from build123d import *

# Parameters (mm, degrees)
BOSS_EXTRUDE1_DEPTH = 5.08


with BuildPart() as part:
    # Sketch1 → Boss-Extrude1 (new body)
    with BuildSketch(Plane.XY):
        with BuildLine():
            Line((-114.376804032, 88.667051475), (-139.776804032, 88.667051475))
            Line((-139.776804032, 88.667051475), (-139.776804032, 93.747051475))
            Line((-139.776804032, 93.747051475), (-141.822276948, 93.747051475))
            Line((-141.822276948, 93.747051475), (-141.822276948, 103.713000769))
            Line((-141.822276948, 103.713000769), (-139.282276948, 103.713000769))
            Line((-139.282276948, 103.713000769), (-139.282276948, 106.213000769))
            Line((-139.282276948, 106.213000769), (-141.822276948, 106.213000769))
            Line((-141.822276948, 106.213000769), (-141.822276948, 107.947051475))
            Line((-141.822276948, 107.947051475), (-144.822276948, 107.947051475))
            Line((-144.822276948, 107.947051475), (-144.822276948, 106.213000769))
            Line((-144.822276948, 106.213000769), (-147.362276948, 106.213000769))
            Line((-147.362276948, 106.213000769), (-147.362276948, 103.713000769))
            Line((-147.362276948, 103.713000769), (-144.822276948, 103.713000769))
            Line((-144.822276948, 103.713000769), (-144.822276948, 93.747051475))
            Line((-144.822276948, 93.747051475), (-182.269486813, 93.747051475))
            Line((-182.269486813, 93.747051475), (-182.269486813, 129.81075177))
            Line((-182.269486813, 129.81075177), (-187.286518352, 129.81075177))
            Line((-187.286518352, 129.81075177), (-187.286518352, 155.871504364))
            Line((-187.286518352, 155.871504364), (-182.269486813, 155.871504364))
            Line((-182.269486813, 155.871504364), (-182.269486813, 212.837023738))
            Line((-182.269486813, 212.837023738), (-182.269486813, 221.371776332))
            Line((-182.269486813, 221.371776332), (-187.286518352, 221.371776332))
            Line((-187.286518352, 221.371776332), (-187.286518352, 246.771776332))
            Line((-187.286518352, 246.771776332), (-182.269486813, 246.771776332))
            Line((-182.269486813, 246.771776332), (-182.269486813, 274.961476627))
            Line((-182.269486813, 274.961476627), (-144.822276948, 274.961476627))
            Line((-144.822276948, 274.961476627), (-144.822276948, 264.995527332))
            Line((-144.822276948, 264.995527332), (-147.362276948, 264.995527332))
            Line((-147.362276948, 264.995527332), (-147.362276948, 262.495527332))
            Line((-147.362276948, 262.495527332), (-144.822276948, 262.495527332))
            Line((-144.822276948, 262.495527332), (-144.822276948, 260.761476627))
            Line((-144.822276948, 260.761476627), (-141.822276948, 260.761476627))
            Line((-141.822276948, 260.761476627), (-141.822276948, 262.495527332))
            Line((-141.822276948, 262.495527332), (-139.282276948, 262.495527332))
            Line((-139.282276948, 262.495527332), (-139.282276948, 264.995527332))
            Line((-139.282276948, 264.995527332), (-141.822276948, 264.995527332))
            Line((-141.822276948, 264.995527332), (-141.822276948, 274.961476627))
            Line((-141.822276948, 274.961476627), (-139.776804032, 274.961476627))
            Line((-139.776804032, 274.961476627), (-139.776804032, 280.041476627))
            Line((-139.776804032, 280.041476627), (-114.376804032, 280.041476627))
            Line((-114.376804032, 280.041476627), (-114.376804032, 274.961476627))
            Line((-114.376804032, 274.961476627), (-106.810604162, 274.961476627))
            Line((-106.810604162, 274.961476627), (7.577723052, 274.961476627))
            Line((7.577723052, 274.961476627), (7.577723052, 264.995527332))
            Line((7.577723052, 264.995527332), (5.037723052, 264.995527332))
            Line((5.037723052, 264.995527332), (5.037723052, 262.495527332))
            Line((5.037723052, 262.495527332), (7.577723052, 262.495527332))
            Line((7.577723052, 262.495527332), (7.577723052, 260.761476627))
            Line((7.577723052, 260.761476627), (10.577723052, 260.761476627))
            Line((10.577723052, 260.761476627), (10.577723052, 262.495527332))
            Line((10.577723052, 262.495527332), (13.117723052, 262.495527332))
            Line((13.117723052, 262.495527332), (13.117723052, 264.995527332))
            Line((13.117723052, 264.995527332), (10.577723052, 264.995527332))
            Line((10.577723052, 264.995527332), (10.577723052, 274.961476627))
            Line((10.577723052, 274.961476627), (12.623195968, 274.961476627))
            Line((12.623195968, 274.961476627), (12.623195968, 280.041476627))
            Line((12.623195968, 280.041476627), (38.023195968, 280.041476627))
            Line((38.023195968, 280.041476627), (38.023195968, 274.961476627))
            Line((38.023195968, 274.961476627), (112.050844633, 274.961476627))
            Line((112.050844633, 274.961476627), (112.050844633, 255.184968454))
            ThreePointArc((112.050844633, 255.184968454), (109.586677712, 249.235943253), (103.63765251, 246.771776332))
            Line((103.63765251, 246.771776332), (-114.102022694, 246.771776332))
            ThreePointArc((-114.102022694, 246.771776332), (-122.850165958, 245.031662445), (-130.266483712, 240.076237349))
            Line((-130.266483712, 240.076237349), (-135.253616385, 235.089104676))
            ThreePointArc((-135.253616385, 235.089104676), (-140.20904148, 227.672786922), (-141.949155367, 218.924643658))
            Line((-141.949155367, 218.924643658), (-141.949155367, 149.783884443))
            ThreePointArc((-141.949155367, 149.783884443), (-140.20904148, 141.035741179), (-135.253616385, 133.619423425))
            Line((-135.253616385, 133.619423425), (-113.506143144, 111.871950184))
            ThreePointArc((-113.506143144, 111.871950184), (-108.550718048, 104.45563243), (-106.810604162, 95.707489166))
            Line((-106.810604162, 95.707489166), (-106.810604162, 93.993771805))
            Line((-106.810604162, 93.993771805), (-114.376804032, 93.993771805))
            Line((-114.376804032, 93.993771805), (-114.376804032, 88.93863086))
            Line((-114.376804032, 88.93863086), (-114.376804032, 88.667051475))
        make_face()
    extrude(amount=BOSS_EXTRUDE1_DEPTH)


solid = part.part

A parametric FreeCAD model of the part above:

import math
import FreeCAD as App
import Part
import Sketcher
Q = App.Units.Quantity

doc = App.newDocument("Part")
body = doc.addObject("PartDesign::Body", "Body")

# Sketch on XY plane
sketch1 = body.newObject("Sketcher::SketchObject", "Sketch")
sketch1.AttachmentSupport = (doc.getObject("XY_Plane"), [""])
sketch1.MapMode = "FlatFace"
sketch1.addGeometry([
    Part.LineSegment(App.Vector(-139.776804, 88.667051, 0), App.Vector(-114.376804, 88.667051, 0)),  # 0
    Part.LineSegment(App.Vector(-114.376804, 88.667051, 0), App.Vector(-114.376804, 93.993772, 0)),  # 1
    Part.LineSegment(App.Vector(-114.376804, 93.993772, 0), App.Vector(-106.810604, 93.993772, 0)),  # 2
    Part.LineSegment(App.Vector(-106.810604, 93.993772, 0), App.Vector(-106.810604, 95.707489, 0)),  # 3
    Part.ArcOfCircle(Part.Circle(App.Vector(-129.670604, 95.707489, 0), App.Vector(0, 0, 1), 22.86), math.radians(0), math.radians(45)),  # 4
    Part.LineSegment(App.Vector(-113.506143, 111.87195, 0), App.Vector(-135.253616, 133.619423, 0)),  # 5
    Part.ArcOfCircle(Part.Circle(App.Vector(-119.089155, 149.783884, 0), App.Vector(0, 0, 1), 22.86), math.radians(-180), math.radians(-135)),  # 6
    Part.LineSegment(App.Vector(-141.949155, 149.783884, 0), App.Vector(-141.949155, 218.924644, 0)),  # 7
    Part.ArcOfCircle(Part.Circle(App.Vector(-119.089155, 218.924644, 0), App.Vector(0, 0, 1), 22.86), math.radians(135), math.radians(180)),  # 8
    Part.LineSegment(App.Vector(-135.253616, 235.089105, 0), App.Vector(-130.266484, 240.076237, 0)),  # 9
    Part.ArcOfCircle(Part.Circle(App.Vector(-114.102023, 223.911776, 0), App.Vector(0, 0, 1), 22.86), math.radians(90), math.radians(135)),  # 10
    Part.LineSegment(App.Vector(-114.102023, 246.771776, 0), App.Vector(103.637653, 246.771776, 0)),  # 11
    Part.ArcOfCircle(Part.Circle(App.Vector(103.637653, 255.184968, 0), App.Vector(0, 0, 1), 8.413192), math.radians(-90), math.radians(0)),  # 12
    Part.LineSegment(App.Vector(112.050845, 255.184968, 0), App.Vector(112.050845, 274.961477, 0)),  # 13
    Part.LineSegment(App.Vector(112.050845, 274.961477, 0), App.Vector(38.023196, 274.961477, 0)),  # 14
    Part.LineSegment(App.Vector(38.023196, 274.961477, 0), App.Vector(38.023196, 280.041477, 0)),  # 15
    Part.LineSegment(App.Vector(38.023196, 280.041477, 0), App.Vector(12.623196, 280.041477, 0)),  # 16
    Part.LineSegment(App.Vector(12.623196, 280.041477, 0), App.Vector(12.623196, 274.961477, 0)),  # 17
    Part.LineSegment(App.Vector(12.623196, 274.961477, 0), App.Vector(10.577723, 274.961477, 0)),  # 18
    Part.LineSegment(App.Vector(10.577723, 274.961477, 0), App.Vector(10.577723, 264.995527, 0)),  # 19
    Part.LineSegment(App.Vector(10.577723, 264.995527, 0), App.Vector(13.117723, 264.995527, 0)),  # 20
    Part.LineSegment(App.Vector(13.117723, 264.995527, 0), App.Vector(13.117723, 262.495527, 0)),  # 21
    Part.LineSegment(App.Vector(13.117723, 262.495527, 0), App.Vector(10.577723, 262.495527, 0)),  # 22
    Part.LineSegment(App.Vector(10.577723, 262.495527, 0), App.Vector(10.577723, 260.761477, 0)),  # 23
    Part.LineSegment(App.Vector(10.577723, 260.761477, 0), App.Vector(7.577723, 260.761477, 0)),  # 24
    Part.LineSegment(App.Vector(7.577723, 260.761477, 0), App.Vector(7.577723, 262.495527, 0)),  # 25
    Part.LineSegment(App.Vector(7.577723, 262.495527, 0), App.Vector(5.037723, 262.495527, 0)),  # 26
    Part.LineSegment(App.Vector(5.037723, 262.495527, 0), App.Vector(5.037723, 264.995527, 0)),  # 27
    Part.LineSegment(App.Vector(5.037723, 264.995527, 0), App.Vector(7.577723, 264.995527, 0)),  # 28
    Part.LineSegment(App.Vector(7.577723, 264.995527, 0), App.Vector(7.577723, 274.961477, 0)),  # 29
    Part.LineSegment(App.Vector(7.577723, 274.961477, 0), App.Vector(-114.376804, 274.961477, 0)),  # 30
    Part.LineSegment(App.Vector(-114.376804, 274.961477, 0), App.Vector(-114.376804, 280.041477, 0)),  # 31
    Part.LineSegment(App.Vector(-114.376804, 280.041477, 0), App.Vector(-139.776804, 280.041477, 0)),  # 32
    Part.LineSegment(App.Vector(-139.776804, 280.041477, 0), App.Vector(-139.776804, 274.961477, 0)),  # 33
    Part.LineSegment(App.Vector(-139.776804, 274.961477, 0), App.Vector(-141.822277, 274.961477, 0)),  # 34
    Part.LineSegment(App.Vector(-141.822277, 274.961477, 0), App.Vector(-141.822277, 264.995527, 0)),  # 35
    Part.LineSegment(App.Vector(-141.822277, 264.995527, 0), App.Vector(-139.282277, 264.995527, 0)),  # 36
    Part.LineSegment(App.Vector(-139.282277, 264.995527, 0), App.Vector(-139.282277, 262.495527, 0)),  # 37
    Part.LineSegment(App.Vector(-139.282277, 262.495527, 0), App.Vector(-141.822277, 262.495527, 0)),  # 38
    Part.LineSegment(App.Vector(-141.822277, 262.495527, 0), App.Vector(-141.822277, 260.761477, 0)),  # 39
    Part.LineSegment(App.Vector(-141.822277, 260.761477, 0), App.Vector(-144.822277, 260.761477, 0)),  # 40
    Part.LineSegment(App.Vector(-144.822277, 260.761477, 0), App.Vector(-144.822277, 262.495527, 0)),  # 41
    Part.LineSegment(App.Vector(-144.822277, 262.495527, 0), App.Vector(-147.362277, 262.495527, 0)),  # 42
    Part.LineSegment(App.Vector(-147.362277, 262.495527, 0), App.Vector(-147.362277, 264.995527, 0)),  # 43
    Part.LineSegment(App.Vector(-147.362277, 264.995527, 0), App.Vector(-144.822277, 264.995527, 0)),  # 44
    Part.LineSegment(App.Vector(-144.822277, 264.995527, 0), App.Vector(-144.822277, 274.961477, 0)),  # 45
    Part.LineSegment(App.Vector(-144.822277, 274.961477, 0), App.Vector(-182.269487, 274.961477, 0)),  # 46
    Part.LineSegment(App.Vector(-182.269487, 274.961477, 0), App.Vector(-182.269487, 246.771776, 0)),  # 47
    Part.LineSegment(App.Vector(-182.269487, 246.771776, 0), App.Vector(-187.286518, 246.771776, 0)),  # 48
    Part.LineSegment(App.Vector(-187.286518, 246.771776, 0), App.Vector(-187.286518, 221.371776, 0)),  # 49
    Part.LineSegment(App.Vector(-187.286518, 221.371776, 0), App.Vector(-182.269487, 221.371776, 0)),  # 50
    Part.LineSegment(App.Vector(-182.269487, 221.371776, 0), App.Vector(-182.269487, 155.871504, 0)),  # 51
    Part.LineSegment(App.Vector(-182.269487, 155.871504, 0), App.Vector(-187.286518, 155.871504, 0)),  # 52
    Part.LineSegment(App.Vector(-187.286518, 155.871504, 0), App.Vector(-187.286518, 129.810752, 0)),  # 53
    Part.LineSegment(App.Vector(-187.286518, 129.810752, 0), App.Vector(-182.269487, 129.810752, 0)),  # 54
    Part.LineSegment(App.Vector(-182.269487, 129.810752, 0), App.Vector(-182.269487, 93.747051, 0)),  # 55
    Part.LineSegment(App.Vector(-182.269487, 93.747051, 0), App.Vector(-144.822277, 93.747051, 0)),  # 56
    Part.LineSegment(App.Vector(-144.822277, 93.747051, 0), App.Vector(-144.822277, 103.713001, 0)),  # 57
    Part.LineSegment(App.Vector(-144.822277, 103.713001, 0), App.Vector(-147.362277, 103.713001, 0)),  # 58
    Part.LineSegment(App.Vector(-147.362277, 103.713001, 0), App.Vector(-147.362277, 106.213001, 0)),  # 59
    Part.LineSegment(App.Vector(-147.362277, 106.213001, 0), App.Vector(-144.822277, 106.213001, 0)),  # 60
    Part.LineSegment(App.Vector(-144.822277, 106.213001, 0), App.Vector(-144.822277, 107.947051, 0)),  # 61
    Part.LineSegment(App.Vector(-144.822277, 107.947051, 0), App.Vector(-141.822277, 107.947051, 0)),  # 62
    Part.LineSegment(App.Vector(-141.822277, 107.947051, 0), App.Vector(-141.822277, 106.213001, 0)),  # 63
    Part.LineSegment(App.Vector(-141.822277, 106.213001, 0), App.Vector(-139.282277, 106.213001, 0)),  # 64
    Part.LineSegment(App.Vector(-139.282277, 106.213001, 0), App.Vector(-139.282277, 103.713001, 0)),  # 65
    Part.LineSegment(App.Vector(-139.282277, 103.713001, 0), App.Vector(-141.822277, 103.713001, 0)),  # 66
    Part.LineSegment(App.Vector(-141.822277, 103.713001, 0), App.Vector(-141.822277, 93.747051, 0)),  # 67
    Part.LineSegment(App.Vector(-141.822277, 93.747051, 0), App.Vector(-139.776804, 93.747051, 0)),  # 68
    Part.LineSegment(App.Vector(-139.776804, 93.747051, 0), App.Vector(-139.776804, 88.667051, 0)),  # 69
], False)
sketch1.addConstraint([
    Sketcher.Constraint("Coincident", 0, 2, 1, 1),
    Sketcher.Constraint("Coincident", 1, 2, 2, 1),
    Sketcher.Constraint("Coincident", 2, 2, 3, 1),
    Sketcher.Constraint("Tangent", 3, 2, 4, 1),
    Sketcher.Constraint("Tangent", 4, 2, 5, 1),
    Sketcher.Constraint("Tangent", 5, 2, 6, 2),
    Sketcher.Constraint("Tangent", 6, 1, 7, 1),
    Sketcher.Constraint("Tangent", 7, 2, 8, 2),
    Sketcher.Constraint("Tangent", 8, 1, 9, 1),
    Sketcher.Constraint("Tangent", 9, 2, 10, 2),
    Sketcher.Constraint("Tangent", 10, 1, 11, 1),
    Sketcher.Constraint("Tangent", 11, 2, 12, 1),
    Sketcher.Constraint("Tangent", 12, 2, 13, 1),
    Sketcher.Constraint("Coincident", 13, 2, 14, 1),
    Sketcher.Constraint("Coincident", 14, 2, 15, 1),
    Sketcher.Constraint("Coincident", 15, 2, 16, 1),
    Sketcher.Constraint("Coincident", 16, 2, 17, 1),
    Sketcher.Constraint("Coincident", 17, 2, 18, 1),
    Sketcher.Constraint("Coincident", 18, 2, 19, 1),
    Sketcher.Constraint("Coincident", 19, 2, 20, 1),
    Sketcher.Constraint("Coincident", 20, 2, 21, 1),
    Sketcher.Constraint("Coincident", 21, 2, 22, 1),
    Sketcher.Constraint("Coincident", 22, 2, 23, 1),
    Sketcher.Constraint("Coincident", 23, 2, 24, 1),
    Sketcher.Constraint("Coincident", 24, 2, 25, 1),
    Sketcher.Constraint("Coincident", 25, 2, 26, 1),
    Sketcher.Constraint("Coincident", 26, 2, 27, 1),
    Sketcher.Constraint("Coincident", 27, 2, 28, 1),
    Sketcher.Constraint("Coincident", 28, 2, 29, 1),
    Sketcher.Constraint("Coincident", 29, 2, 30, 1),
    Sketcher.Constraint("Coincident", 30, 2, 31, 1),
    Sketcher.Constraint("Coincident", 31, 2, 32, 1),
    Sketcher.Constraint("Coincident", 32, 2, 33, 1),
    Sketcher.Constraint("Coincident", 33, 2, 34, 1),
    Sketcher.Constraint("Coincident", 34, 2, 35, 1),
    Sketcher.Constraint("Coincident", 35, 2, 36, 1),
    Sketcher.Constraint("Coincident", 36, 2, 37, 1),
    Sketcher.Constraint("Coincident", 37, 2, 38, 1),
    Sketcher.Constraint("Coincident", 38, 2, 39, 1),
    Sketcher.Constraint("Coincident", 39, 2, 40, 1),
    Sketcher.Constraint("Coincident", 40, 2, 41, 1),
    Sketcher.Constraint("Coincident", 41, 2, 42, 1),
    Sketcher.Constraint("Coincident", 42, 2, 43, 1),
    Sketcher.Constraint("Coincident", 43, 2, 44, 1),
    Sketcher.Constraint("Coincident", 44, 2, 45, 1),
    Sketcher.Constraint("Coincident", 45, 2, 46, 1),
    Sketcher.Constraint("Coincident", 46, 2, 47, 1),
    Sketcher.Constraint("Coincident", 47, 2, 48, 1),
    Sketcher.Constraint("Coincident", 48, 2, 49, 1),
    Sketcher.Constraint("Coincident", 49, 2, 50, 1),
    Sketcher.Constraint("Coincident", 50, 2, 51, 1),
    Sketcher.Constraint("Coincident", 51, 2, 52, 1),
    Sketcher.Constraint("Coincident", 52, 2, 53, 1),
    Sketcher.Constraint("Coincident", 53, 2, 54, 1),
    Sketcher.Constraint("Coincident", 54, 2, 55, 1),
    Sketcher.Constraint("Coincident", 55, 2, 56, 1),
    Sketcher.Constraint("Coincident", 56, 2, 57, 1),
    Sketcher.Constraint("Coincident", 57, 2, 58, 1),
    Sketcher.Constraint("Coincident", 58, 2, 59, 1),
    Sketcher.Constraint("Coincident", 59, 2, 60, 1),
    Sketcher.Constraint("Coincident", 60, 2, 61, 1),
    Sketcher.Constraint("Coincident", 61, 2, 62, 1),
    Sketcher.Constraint("Coincident", 62, 2, 63, 1),
    Sketcher.Constraint("Coincident", 63, 2, 64, 1),
    Sketcher.Constraint("Coincident", 64, 2, 65, 1),
    Sketcher.Constraint("Coincident", 65, 2, 66, 1),
    Sketcher.Constraint("Coincident", 66, 2, 67, 1),
    Sketcher.Constraint("Coincident", 67, 2, 68, 1),
    Sketcher.Constraint("Coincident", 68, 2, 69, 1),
    Sketcher.Constraint("Coincident", 69, 2, 0, 1),
    Sketcher.Constraint("Horizontal", 0),
    Sketcher.Constraint("Vertical", 1),
    Sketcher.Constraint("Horizontal", 2),
    Sketcher.Constraint("Vertical", 3),
    Sketcher.Constraint("Vertical", 7),
    Sketcher.Constraint("Horizontal", 11),
    Sketcher.Constraint("Vertical", 13),
    Sketcher.Constraint("Horizontal", 14),
    Sketcher.Constraint("Vertical", 15),
    Sketcher.Constraint("Horizontal", 16),
    Sketcher.Constraint("Vertical", 17),
    Sketcher.Constraint("Horizontal", 18),
    Sketcher.Constraint("Vertical", 19),
    Sketcher.Constraint("Horizontal", 20),
    Sketcher.Constraint("Vertical", 21),
    Sketcher.Constraint("Horizontal", 22),
    Sketcher.Constraint("Vertical", 23),
    Sketcher.Constraint("Horizontal", 24),
    Sketcher.Constraint("Vertical", 25),
    Sketcher.Constraint("Horizontal", 26),
    Sketcher.Constraint("Vertical", 27),
    Sketcher.Constraint("Horizontal", 28),
    Sketcher.Constraint("Vertical", 29),
    Sketcher.Constraint("Horizontal", 30),
    Sketcher.Constraint("Vertical", 31),
    Sketcher.Constraint("Horizontal", 32),
    Sketcher.Constraint("Vertical", 33),
    Sketcher.Constraint("Horizontal", 34),
    Sketcher.Constraint("Vertical", 35),
    Sketcher.Constraint("Horizontal", 36),
    Sketcher.Constraint("Vertical", 37),
    Sketcher.Constraint("Horizontal", 38),
    Sketcher.Constraint("Vertical", 39),
    Sketcher.Constraint("Horizontal", 40),
    Sketcher.Constraint("Vertical", 41),
    Sketcher.Constraint("Horizontal", 42),
    Sketcher.Constraint("Vertical", 43),
    Sketcher.Constraint("Horizontal", 44),
    Sketcher.Constraint("Vertical", 45),
    Sketcher.Constraint("Horizontal", 46),
    Sketcher.Constraint("Vertical", 47),
    Sketcher.Constraint("Horizontal", 48),
    Sketcher.Constraint("Vertical", 49),
    Sketcher.Constraint("Horizontal", 50),
    Sketcher.Constraint("Vertical", 51),
    Sketcher.Constraint("Horizontal", 52),
    Sketcher.Constraint("Vertical", 53),
    Sketcher.Constraint("Horizontal", 54),
    Sketcher.Constraint("Vertical", 55),
    Sketcher.Constraint("Horizontal", 56),
    Sketcher.Constraint("Vertical", 57),
    Sketcher.Constraint("Horizontal", 58),
    Sketcher.Constraint("Vertical", 59),
    Sketcher.Constraint("Horizontal", 60),
    Sketcher.Constraint("Vertical", 61),
    Sketcher.Constraint("Horizontal", 62),
    Sketcher.Constraint("Vertical", 63),
    Sketcher.Constraint("Horizontal", 64),
    Sketcher.Constraint("Vertical", 65),
    Sketcher.Constraint("Horizontal", 66),
    Sketcher.Constraint("Vertical", 67),
    Sketcher.Constraint("Horizontal", 68),
    Sketcher.Constraint("Vertical", 69),
    Sketcher.Constraint("Equal", 4, 6),
    Sketcher.Constraint("Equal", 6, 8),
    Sketcher.Constraint("Equal", 8, 10),
    Sketcher.Constraint("Perpendicular", 5, 9),
    Sketcher.Constraint("Horizontal", 14, 2, 17, 2),
    Sketcher.Constraint("Horizontal", 22, 2, 25, 2),
    Sketcher.Constraint("Horizontal", 20, 2, 27, 2),
    Sketcher.Constraint("Horizontal", 18, 2, 29, 2),
    Sketcher.Constraint("Horizontal", 16, 2, 31, 2),
    Sketcher.Constraint("Horizontal", 30, 2, 33, 2),
    Sketcher.Constraint("Horizontal", 28, 2, 35, 2),
    Sketcher.Constraint("Horizontal", 26, 2, 37, 2),
    Sketcher.Constraint("Horizontal", 24, 2, 39, 2),
    Sketcher.Constraint("Horizontal", 38, 2, 41, 2),
    Sketcher.Constraint("Horizontal", 36, 2, 43, 2),
    Sketcher.Constraint("Horizontal", 34, 2, 45, 2),
    Sketcher.Constraint("Horizontal", 11, 2, 47, 2),
    Sketcher.Constraint("Horizontal", 60, 2, 63, 2),
    Sketcher.Constraint("Horizontal", 58, 2, 65, 2),
    Sketcher.Constraint("Horizontal", 56, 2, 67, 2),
    Sketcher.Constraint("Vertical", 5, 2, 8, 1),
    Sketcher.Constraint("Vertical", 19, 2, 22, 2),
    Sketcher.Constraint("Vertical", 25, 2, 28, 2),
    Sketcher.Constraint("Vertical", 1, 2, 30, 2),
    Sketcher.Constraint("Vertical", 35, 2, 38, 2),
    Sketcher.Constraint("Vertical", 41, 2, 44, 2),
    Sketcher.Constraint("Vertical", 47, 2, 50, 2),
    Sketcher.Constraint("Vertical", 49, 2, 52, 2),
    Sketcher.Constraint("Vertical", 51, 2, 54, 2),
    Sketcher.Constraint("Vertical", 45, 2, 56, 2),
    Sketcher.Constraint("Vertical", 43, 2, 58, 2),
    Sketcher.Constraint("Vertical", 57, 2, 60, 2),
    Sketcher.Constraint("Vertical", 39, 2, 62, 2),
    Sketcher.Constraint("Vertical", 37, 2, 64, 2),
    Sketcher.Constraint("Vertical", 63, 2, 66, 2),
    Sketcher.Constraint("Vertical", 33, 2, 68, 2),
    Sketcher.Constraint("Equal", 0, 16),
    Sketcher.Constraint("Equal", 22, 26),
    Sketcher.Constraint("Equal", 18, 34),
    Sketcher.Constraint("Equal", 28, 36),
    Sketcher.Constraint("Equal", 24, 40),
    Sketcher.Constraint("Equal", 38, 42),
    Sketcher.Constraint("Equal", 32, 49),
    Sketcher.Constraint("Equal", 45, 57),
    Sketcher.Constraint("Equal", 43, 59),
    Sketcher.Constraint("Equal", 41, 61),
    Sketcher.Constraint("Equal", 33, 69),
    Sketcher.Constraint("Radius", 4, Q("0.9 in")),
    Sketcher.Constraint("DistanceX", 0, 1, 0, 2, Q("1 in")),
    Sketcher.Constraint("DistanceX", 20, 1, 20, 2, Q("0.1 in")),
    Sketcher.Constraint("DistanceY", 15, 1, 15, 2, Q("0.2 in")),
    Sketcher.Constraint("DistanceX", 2, 1, 2, 2, 7.5662),
    Sketcher.Constraint("DistanceX", 24, 2, 24, 1, 3.0),
    Sketcher.Constraint("DistanceY", 21, 2, 21, 1, 2.5),
    Sketcher.Constraint("DistanceY", 47, 2, 47, 1, 28.1897),
    Sketcher.Constraint("DistanceY", 55, 2, 55, 1, 36.0637),
    Sketcher.Constraint("DistanceY", -1, 1, 23, 2, Q("10.2661999 in")),
    Sketcher.Constraint("Radius", 12, 8.413192),
    Sketcher.Constraint("DistanceX", 14, 2, 14, 1, 74.027649),
    Sketcher.Constraint("DistanceX", 46, 2, 46, 1, 37.44721),
    Sketcher.Constraint("DistanceX", 48, 2, 48, 1, 5.017032),
    Sketcher.Constraint("DistanceY", 1, 1, 1, 2, 5.32672),
    Sketcher.Constraint("DistanceY", 7, 1, 7, 2, 69.140759),
    Sketcher.Constraint("DistanceY", 19, 2, 19, 1, 9.965949),
    Sketcher.Constraint("DistanceY", 23, 2, 23, 1, 1.734051),
    Sketcher.Constraint("DistanceY", 51, 2, 51, 1, 65.500272),
    Sketcher.Constraint("DistanceY", -1, 1, 57, 2, 103.713001),
    Sketcher.Constraint("Distance", 5, 30.755572),
    Sketcher.Constraint("Distance", 9, 7.052871),
    Sketcher.Constraint("DistanceX", 11, 1, 11, 2, 217.739675),
    Sketcher.Constraint("DistanceX", 18, 2, 18, 1, 2.045473),
    Sketcher.Constraint("DistanceX", 48, 2, -1, 1, 187.286518),
])
pad1 = body.newObject("PartDesign::Pad", "Pad")
pad1.Profile = sketch1
pad1.Length = Q("0.2 in")

doc.recompute()
